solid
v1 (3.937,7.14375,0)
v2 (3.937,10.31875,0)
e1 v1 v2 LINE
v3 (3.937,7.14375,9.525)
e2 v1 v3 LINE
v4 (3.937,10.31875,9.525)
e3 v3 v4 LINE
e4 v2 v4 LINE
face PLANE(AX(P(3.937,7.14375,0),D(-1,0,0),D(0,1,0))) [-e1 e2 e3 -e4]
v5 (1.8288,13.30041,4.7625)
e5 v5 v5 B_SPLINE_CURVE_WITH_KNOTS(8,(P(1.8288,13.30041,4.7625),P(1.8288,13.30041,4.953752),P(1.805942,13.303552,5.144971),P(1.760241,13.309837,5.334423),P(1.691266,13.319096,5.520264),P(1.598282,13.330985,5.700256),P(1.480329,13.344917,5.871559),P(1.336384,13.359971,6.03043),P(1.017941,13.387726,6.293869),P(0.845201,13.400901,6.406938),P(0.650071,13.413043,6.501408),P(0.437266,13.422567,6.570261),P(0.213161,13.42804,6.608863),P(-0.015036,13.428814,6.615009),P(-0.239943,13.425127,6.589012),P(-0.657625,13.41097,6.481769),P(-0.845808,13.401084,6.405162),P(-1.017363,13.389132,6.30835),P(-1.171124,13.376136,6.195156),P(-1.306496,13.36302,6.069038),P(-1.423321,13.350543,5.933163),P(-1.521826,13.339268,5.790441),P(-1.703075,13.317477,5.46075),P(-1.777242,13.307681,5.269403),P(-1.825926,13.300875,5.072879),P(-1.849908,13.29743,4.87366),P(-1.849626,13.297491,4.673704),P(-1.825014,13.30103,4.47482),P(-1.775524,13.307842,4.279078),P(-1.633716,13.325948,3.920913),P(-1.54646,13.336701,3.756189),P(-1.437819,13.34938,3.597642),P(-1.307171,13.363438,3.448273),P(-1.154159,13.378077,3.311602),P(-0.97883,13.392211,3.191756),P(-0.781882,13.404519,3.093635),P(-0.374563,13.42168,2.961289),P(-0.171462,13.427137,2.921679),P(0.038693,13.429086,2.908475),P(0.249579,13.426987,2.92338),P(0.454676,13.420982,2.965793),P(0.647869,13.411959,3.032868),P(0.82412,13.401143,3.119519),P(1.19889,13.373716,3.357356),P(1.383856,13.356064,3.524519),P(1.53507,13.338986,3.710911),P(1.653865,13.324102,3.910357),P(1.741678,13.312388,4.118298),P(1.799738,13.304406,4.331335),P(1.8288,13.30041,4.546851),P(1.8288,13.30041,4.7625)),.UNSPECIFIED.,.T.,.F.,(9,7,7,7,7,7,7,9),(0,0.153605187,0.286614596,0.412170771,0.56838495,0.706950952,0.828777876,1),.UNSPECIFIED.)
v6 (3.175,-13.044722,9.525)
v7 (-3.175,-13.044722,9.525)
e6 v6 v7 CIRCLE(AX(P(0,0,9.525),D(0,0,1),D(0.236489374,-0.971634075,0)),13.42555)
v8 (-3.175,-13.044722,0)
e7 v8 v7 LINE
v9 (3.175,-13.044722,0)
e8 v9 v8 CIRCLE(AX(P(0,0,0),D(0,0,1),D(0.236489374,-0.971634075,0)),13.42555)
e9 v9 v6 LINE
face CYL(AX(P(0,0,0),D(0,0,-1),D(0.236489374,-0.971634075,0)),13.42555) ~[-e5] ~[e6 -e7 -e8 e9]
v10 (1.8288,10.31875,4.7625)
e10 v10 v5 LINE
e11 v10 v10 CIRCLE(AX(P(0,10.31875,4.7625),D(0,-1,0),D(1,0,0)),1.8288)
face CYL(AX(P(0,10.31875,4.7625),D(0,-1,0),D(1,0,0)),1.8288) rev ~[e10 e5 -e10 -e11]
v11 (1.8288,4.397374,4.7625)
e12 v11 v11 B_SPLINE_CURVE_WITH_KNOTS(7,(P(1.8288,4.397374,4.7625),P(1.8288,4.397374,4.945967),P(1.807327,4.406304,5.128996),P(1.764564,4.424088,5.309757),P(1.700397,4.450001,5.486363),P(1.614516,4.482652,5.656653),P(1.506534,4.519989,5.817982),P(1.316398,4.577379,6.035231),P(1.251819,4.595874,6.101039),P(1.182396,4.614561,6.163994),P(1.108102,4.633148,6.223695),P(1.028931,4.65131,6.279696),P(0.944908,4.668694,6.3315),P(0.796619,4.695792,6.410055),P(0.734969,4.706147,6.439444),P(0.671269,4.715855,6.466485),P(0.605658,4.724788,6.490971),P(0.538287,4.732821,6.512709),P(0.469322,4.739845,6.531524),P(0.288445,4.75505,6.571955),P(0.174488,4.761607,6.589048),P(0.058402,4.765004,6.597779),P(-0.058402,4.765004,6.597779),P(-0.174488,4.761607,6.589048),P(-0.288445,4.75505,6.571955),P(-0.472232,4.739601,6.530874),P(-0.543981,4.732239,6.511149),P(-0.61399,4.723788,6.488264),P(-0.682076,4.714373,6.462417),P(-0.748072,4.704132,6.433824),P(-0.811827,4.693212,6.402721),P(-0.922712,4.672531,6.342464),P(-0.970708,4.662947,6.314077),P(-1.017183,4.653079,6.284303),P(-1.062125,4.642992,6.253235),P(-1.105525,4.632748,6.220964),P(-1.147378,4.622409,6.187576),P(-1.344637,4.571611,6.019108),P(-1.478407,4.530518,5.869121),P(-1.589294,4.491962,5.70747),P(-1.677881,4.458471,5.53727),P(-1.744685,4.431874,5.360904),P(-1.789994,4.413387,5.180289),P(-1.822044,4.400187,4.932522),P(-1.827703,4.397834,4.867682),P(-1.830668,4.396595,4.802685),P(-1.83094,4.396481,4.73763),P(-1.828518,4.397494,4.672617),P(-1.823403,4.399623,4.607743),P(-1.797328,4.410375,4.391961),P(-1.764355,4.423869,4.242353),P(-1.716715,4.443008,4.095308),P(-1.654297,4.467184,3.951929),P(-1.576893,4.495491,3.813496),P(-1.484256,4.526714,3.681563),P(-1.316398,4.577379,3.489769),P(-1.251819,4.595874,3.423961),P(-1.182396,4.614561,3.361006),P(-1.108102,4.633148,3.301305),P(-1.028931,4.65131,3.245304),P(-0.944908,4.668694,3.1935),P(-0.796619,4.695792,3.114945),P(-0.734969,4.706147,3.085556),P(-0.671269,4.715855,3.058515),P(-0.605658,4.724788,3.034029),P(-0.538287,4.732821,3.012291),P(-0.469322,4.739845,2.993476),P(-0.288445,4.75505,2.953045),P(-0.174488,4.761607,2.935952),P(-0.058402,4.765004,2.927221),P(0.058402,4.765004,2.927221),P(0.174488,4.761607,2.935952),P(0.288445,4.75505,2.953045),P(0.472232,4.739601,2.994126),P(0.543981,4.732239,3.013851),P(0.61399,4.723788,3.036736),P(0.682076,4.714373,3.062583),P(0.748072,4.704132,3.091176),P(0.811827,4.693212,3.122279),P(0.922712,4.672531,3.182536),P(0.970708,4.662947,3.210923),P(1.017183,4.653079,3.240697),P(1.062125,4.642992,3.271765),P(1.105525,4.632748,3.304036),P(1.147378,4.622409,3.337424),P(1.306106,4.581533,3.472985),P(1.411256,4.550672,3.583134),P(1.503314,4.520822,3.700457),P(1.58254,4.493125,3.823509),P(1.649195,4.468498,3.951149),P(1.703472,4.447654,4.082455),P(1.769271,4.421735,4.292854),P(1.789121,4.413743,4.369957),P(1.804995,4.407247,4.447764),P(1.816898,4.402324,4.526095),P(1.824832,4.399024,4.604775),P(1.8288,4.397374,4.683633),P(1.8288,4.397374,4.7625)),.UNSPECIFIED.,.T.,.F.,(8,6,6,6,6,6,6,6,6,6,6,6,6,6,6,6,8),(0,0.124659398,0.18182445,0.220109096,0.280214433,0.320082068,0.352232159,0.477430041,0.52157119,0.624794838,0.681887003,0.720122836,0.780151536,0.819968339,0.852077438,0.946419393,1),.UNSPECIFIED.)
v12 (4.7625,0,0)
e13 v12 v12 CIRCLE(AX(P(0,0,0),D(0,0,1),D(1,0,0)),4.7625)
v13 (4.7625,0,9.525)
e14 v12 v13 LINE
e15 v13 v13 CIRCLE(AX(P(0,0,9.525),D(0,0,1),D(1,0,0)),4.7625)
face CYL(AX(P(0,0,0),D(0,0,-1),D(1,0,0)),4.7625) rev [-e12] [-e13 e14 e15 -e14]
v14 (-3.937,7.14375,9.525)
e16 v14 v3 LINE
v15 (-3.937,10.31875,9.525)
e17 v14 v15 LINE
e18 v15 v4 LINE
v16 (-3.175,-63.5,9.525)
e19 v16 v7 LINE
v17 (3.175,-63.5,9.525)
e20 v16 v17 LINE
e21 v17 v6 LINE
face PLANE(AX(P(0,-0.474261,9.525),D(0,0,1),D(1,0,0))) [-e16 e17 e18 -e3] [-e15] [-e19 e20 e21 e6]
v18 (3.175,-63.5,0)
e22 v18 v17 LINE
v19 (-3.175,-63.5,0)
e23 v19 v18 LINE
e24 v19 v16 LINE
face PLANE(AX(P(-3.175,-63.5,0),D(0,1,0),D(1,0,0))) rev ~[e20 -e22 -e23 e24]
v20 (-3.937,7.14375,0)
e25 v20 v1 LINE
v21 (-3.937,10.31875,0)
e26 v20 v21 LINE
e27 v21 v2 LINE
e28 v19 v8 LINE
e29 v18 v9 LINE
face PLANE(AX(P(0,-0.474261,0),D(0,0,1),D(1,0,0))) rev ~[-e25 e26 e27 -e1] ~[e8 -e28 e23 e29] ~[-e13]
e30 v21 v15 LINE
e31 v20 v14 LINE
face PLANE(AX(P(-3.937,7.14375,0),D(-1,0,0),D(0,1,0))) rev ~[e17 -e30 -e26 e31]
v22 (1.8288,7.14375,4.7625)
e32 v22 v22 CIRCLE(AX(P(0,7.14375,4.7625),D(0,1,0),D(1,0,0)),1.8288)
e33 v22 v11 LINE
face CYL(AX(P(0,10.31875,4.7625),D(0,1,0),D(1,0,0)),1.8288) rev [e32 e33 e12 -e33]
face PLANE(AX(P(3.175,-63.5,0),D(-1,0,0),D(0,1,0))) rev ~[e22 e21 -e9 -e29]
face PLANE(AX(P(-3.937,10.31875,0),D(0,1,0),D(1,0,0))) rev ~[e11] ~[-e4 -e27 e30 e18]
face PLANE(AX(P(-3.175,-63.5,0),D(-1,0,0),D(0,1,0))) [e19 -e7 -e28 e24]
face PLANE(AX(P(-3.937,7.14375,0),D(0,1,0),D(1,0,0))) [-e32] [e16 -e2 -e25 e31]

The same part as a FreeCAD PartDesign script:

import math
import FreeCAD as App
import Part
import Sketcher
from FreeCAD import Vector
Q = App.Units.Quantity


def add_polygon(sketch, points):
    """Adds a closed chain of lines whose ends are joined by coincident constraints."""
    first, n = sketch.GeometryCount, len(points)
    for a, b in zip(points, points[1:] + points[:1]):
        sketch.addGeometry(Part.LineSegment(App.Vector(*a, 0), App.Vector(*b, 0)), False)
    for i in range(n):
        sketch.addConstraint(Sketcher.Constraint("Coincident", first + i, 2, first + (i + 1) % n, 1))

doc = App.newDocument("Part")
body = doc.addObject("PartDesign::Body", "Body")

# Sketch on XY plane
sketch1 = body.newObject("Sketcher::SketchObject", "Sketch")
sketch1.AttachmentSupport = (doc.getObject("XY_Plane"), [""])
sketch1.MapMode = "FlatFace"
sketch1.addGeometry(Part.ArcOfCircle(Part.Circle(Vector(0, 0, 0), Vector(0, 0, 1), 13.4), math.radians(-76), math.radians(256)), False)  # 0
sketch1.addGeometry(Part.LineSegment(Vector(-3.2, -13, 0), Vector(-3.2, -63.5, 0)), False)  # 1
sketch1.addGeometry(Part.LineSegment(Vector(-3.2, -63.5, 0), Vector(3.2, -63.5, 0)), False)  # 2
sketch1.addGeometry(Part.LineSegment(Vector(3.2, -63.5, 0), Vector(3.2, -13, 0)), False)  # 3
sketch1.addGeometry(Part.Circle(Vector(0, 0, 0), Vector(0, 0, 1), 4.8), False)  # 4
add_polygon(sketch1, [(3.9, 7.1), (-3.9, 7.1), (-3.9, 10.3), (3.9, 10.3)])  # lines 5-8
sketch1.addConstraint(Sketcher.Constraint("Coincident", 0, 2, 1, 1))
sketch1.addConstraint(Sketcher.Constraint("Coincident", 1, 2, 2, 1))
sketch1.addConstraint(Sketcher.Constraint("Coincident", 2, 2, 3, 1))
sketch1.addConstraint(Sketcher.Constraint("Coincident", 3, 2, 0, 1))
sketch1.addConstraint(Sketcher.Constraint("Vertical", 1))
sketch1.addConstraint(Sketcher.Constraint("Horizontal", 2))
sketch1.addConstraint(Sketcher.Constraint("Vertical", 3))
sketch1.addConstraint(Sketcher.Constraint("Horizontal", 5))
sketch1.addConstraint(Sketcher.Constraint("Vertical", 6))
sketch1.addConstraint(Sketcher.Constraint("Horizontal", 7))
sketch1.addConstraint(Sketcher.Constraint("Vertical", 8))
sketch1.addConstraint(Sketcher.Constraint("Coincident", 0, 3, -1, 1))
sketch1.addConstraint(Sketcher.Constraint("Coincident", 4, 3, -1, 1))
sketch1.addConstraint(Sketcher.Constraint("Horizontal", 0, 2, 3, 2))
sketch1.addConstraint(Sketcher.Constraint("Diameter", 4, Q("0.375 in")))
sketch1.addConstraint(Sketcher.Constraint("DistanceX", 2, 1, 2, 2, Q("0.25 in")))
sketch1.addConstraint(Sketcher.Constraint("DistanceX", 5, 2, 5, 1, Q("0.31 in")))
sketch1.addConstraint(Sketcher.Constraint("DistanceY", 1, 2, -1, 1, Q("2.5 in")))
sketch1.addConstraint(Sketcher.Constraint("DistanceY", 6, 1, 6, 2, Q("0.125 in")))
sketch1.addConstraint(Sketcher.Constraint("DistanceX", 5, 2, 0, 2, Q("0.03 in")))
sketch1.addConstraint(Sketcher.Constraint("DistanceY", -1, 1, 5, 2, Q("0.28125 in")))
sketch1.addConstraint(Sketcher.Constraint("Radius", 0, Q("13.42555 mm")))
pad1 = body.newObject("PartDesign::Pad", "Pad")
pad1.Profile = sketch1
pad1.Length = Q("0.375 in")

# Sketch on XZ plane
sketch2 = body.newObject("Sketcher::SketchObject", "Sketch001")
sketch2.AttachmentSupport = (doc.getObject("XZ_Plane"), [""])
sketch2.MapMode = "FlatFace"
sketch2.AttachmentOffset = App.Placement(Vector(0, 0, -0.40625 * 25.4), App.Rotation())
sketch2.addGeometry(Part.Circle(Vector(0, 4.8, 0), Vector(0, 0, 1), 1.8), False)
sketch2.addConstraint(Sketcher.Constraint("PointOnObject", 0, 3, -2))
sketch2.addConstraint(Sketcher.Constraint("Diameter", 0, Q("0.144 in")))
sketch2.addConstraint(Sketcher.Constraint("DistanceY", -1, 1, 0, 3, Q("0.1875 in")))
pocket1 = body.newObject("PartDesign::Pocket", "Pocket")
pocket1.Profile = sketch2
pocket1.Type = "TwoLengths"
pocket1.Length = 4.1068
pocket1.Length2 = 6.921376

doc.recompute()
